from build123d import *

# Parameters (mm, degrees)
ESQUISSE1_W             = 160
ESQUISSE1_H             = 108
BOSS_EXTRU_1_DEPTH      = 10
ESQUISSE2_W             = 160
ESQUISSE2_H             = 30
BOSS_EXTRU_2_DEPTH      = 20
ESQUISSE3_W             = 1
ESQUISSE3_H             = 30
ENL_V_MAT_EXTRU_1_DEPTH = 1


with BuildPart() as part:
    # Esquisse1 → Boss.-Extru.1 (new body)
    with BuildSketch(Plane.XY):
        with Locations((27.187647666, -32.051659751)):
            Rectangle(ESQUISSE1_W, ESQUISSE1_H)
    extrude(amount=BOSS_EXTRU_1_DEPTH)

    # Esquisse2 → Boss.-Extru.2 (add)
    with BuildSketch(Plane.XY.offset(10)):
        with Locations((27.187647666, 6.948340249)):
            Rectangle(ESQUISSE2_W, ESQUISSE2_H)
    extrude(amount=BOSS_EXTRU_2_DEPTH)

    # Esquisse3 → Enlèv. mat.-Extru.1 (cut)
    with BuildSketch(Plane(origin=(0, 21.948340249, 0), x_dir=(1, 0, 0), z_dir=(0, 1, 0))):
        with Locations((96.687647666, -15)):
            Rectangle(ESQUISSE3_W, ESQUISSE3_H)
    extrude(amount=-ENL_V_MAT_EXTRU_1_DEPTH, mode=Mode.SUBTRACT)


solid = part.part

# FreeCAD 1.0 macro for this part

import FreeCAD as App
import Part
import Sketcher

V = App.Vector
Q = App.Units.Quantity


def add_polygon(sketch, points):
    """Adds a closed chain of lines whose ends are joined by coincident constraints."""
    first, n = sketch.GeometryCount, len(points)
    for a, b in zip(points, points[1:] + points[:1]):
        sketch.addGeometry(Part.LineSegment(App.Vector(*a, 0), App.Vector(*b, 0)), False)
    for i in range(n):
        sketch.addConstraint(Sketcher.Constraint("Coincident", first + i, 2, first + (i + 1) % n, 1))

doc = App.newDocument("Part")
body = doc.addObject("PartDesign::Body", "Body")

sketch1 = body.newObject("Sketcher::SketchObject", "Sketch")
sketch1.AttachmentSupport = (doc.getObject("XY_Plane"), [""])
sketch1.MapMode = "FlatFace"
add_polygon(sketch1, [(-53, 22), (-53, -86), (107, -86), (107, 22)])
sketch1.addConstraint(Sketcher.Constraint("Vertical", 0))
sketch1.addConstraint(Sketcher.Constraint("Horizontal", 1))
sketch1.addConstraint(Sketcher.Constraint("Vertical", 2))
sketch1.addConstraint(Sketcher.Constraint("Horizontal", 3))
sketch1.addConstraint(Sketcher.Constraint("DistanceX", 1, 1, 1, 2, Q("160 mm")))
sketch1.addConstraint(Sketcher.Constraint("DistanceY", 0, 2, 0, 1, Q("108 mm")))
sketch1.addConstraint(Sketcher.Constraint("DistanceY", 0, 2, -1, 1, Q("86.05166 mm")))
sketch1.addConstraint(Sketcher.Constraint("DistanceX", 0, 2, -1, 1, Q("52.812352 mm")))
pad1 = body.newObject("PartDesign::Pad", "Pad")
pad1.Profile = sketch1
pad1.Length = 10

sketch2 = body.newObject("Sketcher::SketchObject", "Sketch001")
sketch2.AttachmentSupport = (doc.getObject("XY_Plane"), [""])
sketch2.MapMode = "FlatFace"
sketch2.AttachmentOffset = App.Placement(V(0, 0, 10), App.Rotation())
add_polygon(sketch2, [(-53, 22), (-53, -8), (107, -8), (107, 22)])
sketch2.addConstraint(Sketcher.Constraint("Vertical", 0))
sketch2.addConstraint(Sketcher.Constraint("Horizontal", 1))
sketch2.addConstraint(Sketcher.Constraint("Vertical", 2))
sketch2.addConstraint(Sketcher.Constraint("Horizontal", 3))
sketch2.addConstraint(Sketcher.Constraint("DistanceX", 1, 1, 1, 2, Q("160 mm")))
sketch2.addConstraint(Sketcher.Constraint("DistanceY", 0, 2, 0, 1, Q("30 mm")))
sketch2.addConstraint(Sketcher.Constraint("DistanceY", 0, 2, -1, 1, Q("8.05166 mm")))
sketch2.addConstraint(Sketcher.Constraint("DistanceX", 0, 2, -1, 1, Q("52.812352 mm")))
pad2 = body.newObject("PartDesign::Pad", "Pad001")
pad2.Profile = sketch2
pad2.Length = 20

sketch3 = body.newObject("Sketcher::SketchObject", "Sketch002")
sketch3.AttachmentSupport = (doc.getObject("XZ_Plane"), [""])
sketch3.MapMode = "FlatFace"
sketch3.AttachmentOffset = App.Placement(V(0, 0, -21.94834), App.Rotation())
add_polygon(sketch3, [(96.2, 0), (96.2, 30), (97.2, 30), (97.2, 0)])
sketch3.addConstraint(Sketcher.Constraint("Vertical", 0))
sketch3.addConstraint(Sketcher.Constraint("Horizontal", 1))
sketch3.addConstraint(Sketcher.Constraint("Vertical", 2))
sketch3.addConstraint(Sketcher.Constraint("Horizontal", 3))
sketch3.addConstraint(Sketcher.Constraint("PointOnObject", 2, 2, -1))
sketch3.addConstraint(Sketcher.Constraint("DistanceX", 1, 1, 1, 2, Q("1 mm")))
sketch3.addConstraint(Sketcher.Constraint("DistanceY", 0, 1, 0, 2, Q("30 mm")))
sketch3.addConstraint(Sketcher.Constraint("DistanceX", -1, 1, 0, 2, Q("96.187648 mm")))
pocket1 = body.newObject("PartDesign::Pocket", "Pocket")
pocket1.Profile = sketch3
pocket1.Length = 1
pocket1.Reversed = True

doc.recompute()
